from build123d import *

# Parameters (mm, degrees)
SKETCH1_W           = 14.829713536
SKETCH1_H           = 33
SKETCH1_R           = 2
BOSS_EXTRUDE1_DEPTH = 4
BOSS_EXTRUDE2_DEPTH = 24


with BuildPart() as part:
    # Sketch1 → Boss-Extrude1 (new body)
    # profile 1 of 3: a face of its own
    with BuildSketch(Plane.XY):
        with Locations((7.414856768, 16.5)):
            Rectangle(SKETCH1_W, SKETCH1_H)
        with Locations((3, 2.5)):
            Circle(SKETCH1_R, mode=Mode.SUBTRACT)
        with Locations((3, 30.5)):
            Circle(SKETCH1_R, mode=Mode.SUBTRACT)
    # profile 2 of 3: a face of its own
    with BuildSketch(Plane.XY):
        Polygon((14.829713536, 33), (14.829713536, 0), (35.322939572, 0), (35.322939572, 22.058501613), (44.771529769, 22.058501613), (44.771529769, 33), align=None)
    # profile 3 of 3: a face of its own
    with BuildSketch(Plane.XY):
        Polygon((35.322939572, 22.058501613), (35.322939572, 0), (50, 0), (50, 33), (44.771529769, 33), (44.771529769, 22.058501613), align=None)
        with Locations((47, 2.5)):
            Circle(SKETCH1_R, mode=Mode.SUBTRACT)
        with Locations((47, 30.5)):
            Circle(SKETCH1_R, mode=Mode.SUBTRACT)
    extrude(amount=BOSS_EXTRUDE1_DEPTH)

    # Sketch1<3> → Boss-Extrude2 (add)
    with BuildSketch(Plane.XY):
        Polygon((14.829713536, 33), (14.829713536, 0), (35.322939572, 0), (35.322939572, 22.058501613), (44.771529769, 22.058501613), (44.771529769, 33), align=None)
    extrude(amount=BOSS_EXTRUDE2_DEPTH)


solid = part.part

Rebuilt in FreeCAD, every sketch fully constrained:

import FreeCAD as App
import Part
import Sketcher


def add_polygon(sketch, points):
    """Adds a closed chain of lines whose ends are joined by coincident constraints."""
    first, n = sketch.GeometryCount, len(points)
    for a, b in zip(points, points[1:] + points[:1]):
        sketch.addGeometry(Part.LineSegment(App.Vector(*a, 0), App.Vector(*b, 0)), False)
    for i in range(n):
        sketch.addConstraint(Sketcher.Constraint("Coincident", first + i, 2, first + (i + 1) % n, 1))

doc = App.newDocument("Part")
body = doc.addObject("PartDesign::Body", "Body")

# Sketch on XY plane
sketch1 = doc.addObject("Sketcher::SketchObject", "Sketch")
body.addObject(sketch1)
sketch1.AttachmentSupport = (doc.XY_Plane, [""])
sketch1.MapMode = "FlatFace"
add_polygon(sketch1, [(0, 33), (0, 0), (50, 0), (50, 33)])  # lines 0-3
sketch1.addGeometry(Part.Circle(App.Vector(3, 2.5, 0), App.Vector(0, 0, 1), 2), False)  # 4
sketch1.addGeometry(Part.Circle(App.Vector(3, 30.5, 0), App.Vector(0, 0, 1), 2), False)  # 5
sketch1.addGeometry(Part.Circle(App.Vector(47, 30.5, 0), App.Vector(0, 0, 1), 2), False)  # 6
sketch1.addGeometry(Part.Circle(App.Vector(47, 2.5, 0), App.Vector(0, 0, 1), 2), False)  # 7
sketch1.addConstraint(Sketcher.Constraint("Vertical", 0))
sketch1.addConstraint(Sketcher.Constraint("Horizontal", 1))
sketch1.addConstraint(Sketcher.Constraint("Vertical", 2))
sketch1.addConstraint(Sketcher.Constraint("Horizontal", 3))
sketch1.addConstraint(Sketcher.Constraint("Coincident", 0, 2, -1, 1))
sketch1.addConstraint(Sketcher.Constraint("Equal", 4, 5))
sketch1.addConstraint(Sketcher.Constraint("Equal", 5, 6))
sketch1.addConstraint(Sketcher.Constraint("Equal", 6, 7))
sketch1.addConstraint(Sketcher.Constraint("Horizontal", 5, 3, 6, 3))
sketch1.addConstraint(Sketcher.Constraint("Horizontal", 4, 3, 7, 3))
sketch1.addConstraint(Sketcher.Constraint("Vertical", 4, 3, 5, 3))
sketch1.addConstraint(Sketcher.Constraint("Vertical", 6, 3, 7, 3))
sketch1.addConstraint(Sketcher.Constraint("Diameter", 4, 4.0))
sketch1.addConstraint(Sketcher.Constraint("DistanceX", 1, 1, 1, 2, 50.0))
sketch1.addConstraint(Sketcher.Constraint("DistanceY", 0, 2, 0, 1, 33.0))
sketch1.addConstraint(Sketcher.Constraint("DistanceX", -1, 1, 4, 3, 3.0))
sketch1.addConstraint(Sketcher.Constraint("DistanceX", -1, 1, 6, 3, 47.0))
sketch1.addConstraint(Sketcher.Constraint("DistanceY", 4, 3, 5, 3, 28.0))
sketch1.addConstraint(Sketcher.Constraint("DistanceY", -1, 1, 4, 3, 2.5))
pad1 = doc.addObject("PartDesign::Pad", "Pad")
body.addObject(pad1)
pad1.Profile = sketch1
pad1.Length = 4

# Sketch on XY plane
sketch2 = doc.addObject("Sketcher::SketchObject", "Sketch001")
body.addObject(sketch2)
sketch2.AttachmentSupport = (doc.XY_Plane, [""])
sketch2.MapMode = "FlatFace"
add_polygon(sketch2, [(15, 33), (15, 0), (35, 0), (35, 22), (45, 22), (45, 33)])  # lines 0-5
sketch2.addConstraint(Sketcher.Constraint("Vertical", 0))
sketch2.addConstraint(Sketcher.Constraint("Horizontal", 1))
sketch2.addConstraint(Sketcher.Constraint("Vertical", 2))
sketch2.addConstraint(Sketcher.Constraint("Horizontal", 3))
sketch2.addConstraint(Sketcher.Constraint("Vertical", 4))
sketch2.addConstraint(Sketcher.Constraint("Horizontal", 5))
sketch2.addConstraint(Sketcher.Constraint("PointOnObject", 0, 2, -1))
sketch2.addConstraint(Sketcher.Constraint("DistanceY", 0, 2, 0, 1, 33.0))
sketch2.addConstraint(Sketcher.Constraint("DistanceY", 2, 1, 2, 2, 22.058502))
sketch2.addConstraint(Sketcher.Constraint("DistanceX", 3, 1, 3, 2, 9.44859))
sketch2.addConstraint(Sketcher.Constraint("DistanceX", 1, 1, 1, 2, 20.493226))
sketch2.addConstraint(Sketcher.Constraint("DistanceX", -1, 1, 1, 2, 35.32294))
pad2 = doc.addObject("PartDesign::Pad", "Pad001")
body.addObject(pad2)
pad2.Profile = sketch2
pad2.Length = 24

doc.recompute()
